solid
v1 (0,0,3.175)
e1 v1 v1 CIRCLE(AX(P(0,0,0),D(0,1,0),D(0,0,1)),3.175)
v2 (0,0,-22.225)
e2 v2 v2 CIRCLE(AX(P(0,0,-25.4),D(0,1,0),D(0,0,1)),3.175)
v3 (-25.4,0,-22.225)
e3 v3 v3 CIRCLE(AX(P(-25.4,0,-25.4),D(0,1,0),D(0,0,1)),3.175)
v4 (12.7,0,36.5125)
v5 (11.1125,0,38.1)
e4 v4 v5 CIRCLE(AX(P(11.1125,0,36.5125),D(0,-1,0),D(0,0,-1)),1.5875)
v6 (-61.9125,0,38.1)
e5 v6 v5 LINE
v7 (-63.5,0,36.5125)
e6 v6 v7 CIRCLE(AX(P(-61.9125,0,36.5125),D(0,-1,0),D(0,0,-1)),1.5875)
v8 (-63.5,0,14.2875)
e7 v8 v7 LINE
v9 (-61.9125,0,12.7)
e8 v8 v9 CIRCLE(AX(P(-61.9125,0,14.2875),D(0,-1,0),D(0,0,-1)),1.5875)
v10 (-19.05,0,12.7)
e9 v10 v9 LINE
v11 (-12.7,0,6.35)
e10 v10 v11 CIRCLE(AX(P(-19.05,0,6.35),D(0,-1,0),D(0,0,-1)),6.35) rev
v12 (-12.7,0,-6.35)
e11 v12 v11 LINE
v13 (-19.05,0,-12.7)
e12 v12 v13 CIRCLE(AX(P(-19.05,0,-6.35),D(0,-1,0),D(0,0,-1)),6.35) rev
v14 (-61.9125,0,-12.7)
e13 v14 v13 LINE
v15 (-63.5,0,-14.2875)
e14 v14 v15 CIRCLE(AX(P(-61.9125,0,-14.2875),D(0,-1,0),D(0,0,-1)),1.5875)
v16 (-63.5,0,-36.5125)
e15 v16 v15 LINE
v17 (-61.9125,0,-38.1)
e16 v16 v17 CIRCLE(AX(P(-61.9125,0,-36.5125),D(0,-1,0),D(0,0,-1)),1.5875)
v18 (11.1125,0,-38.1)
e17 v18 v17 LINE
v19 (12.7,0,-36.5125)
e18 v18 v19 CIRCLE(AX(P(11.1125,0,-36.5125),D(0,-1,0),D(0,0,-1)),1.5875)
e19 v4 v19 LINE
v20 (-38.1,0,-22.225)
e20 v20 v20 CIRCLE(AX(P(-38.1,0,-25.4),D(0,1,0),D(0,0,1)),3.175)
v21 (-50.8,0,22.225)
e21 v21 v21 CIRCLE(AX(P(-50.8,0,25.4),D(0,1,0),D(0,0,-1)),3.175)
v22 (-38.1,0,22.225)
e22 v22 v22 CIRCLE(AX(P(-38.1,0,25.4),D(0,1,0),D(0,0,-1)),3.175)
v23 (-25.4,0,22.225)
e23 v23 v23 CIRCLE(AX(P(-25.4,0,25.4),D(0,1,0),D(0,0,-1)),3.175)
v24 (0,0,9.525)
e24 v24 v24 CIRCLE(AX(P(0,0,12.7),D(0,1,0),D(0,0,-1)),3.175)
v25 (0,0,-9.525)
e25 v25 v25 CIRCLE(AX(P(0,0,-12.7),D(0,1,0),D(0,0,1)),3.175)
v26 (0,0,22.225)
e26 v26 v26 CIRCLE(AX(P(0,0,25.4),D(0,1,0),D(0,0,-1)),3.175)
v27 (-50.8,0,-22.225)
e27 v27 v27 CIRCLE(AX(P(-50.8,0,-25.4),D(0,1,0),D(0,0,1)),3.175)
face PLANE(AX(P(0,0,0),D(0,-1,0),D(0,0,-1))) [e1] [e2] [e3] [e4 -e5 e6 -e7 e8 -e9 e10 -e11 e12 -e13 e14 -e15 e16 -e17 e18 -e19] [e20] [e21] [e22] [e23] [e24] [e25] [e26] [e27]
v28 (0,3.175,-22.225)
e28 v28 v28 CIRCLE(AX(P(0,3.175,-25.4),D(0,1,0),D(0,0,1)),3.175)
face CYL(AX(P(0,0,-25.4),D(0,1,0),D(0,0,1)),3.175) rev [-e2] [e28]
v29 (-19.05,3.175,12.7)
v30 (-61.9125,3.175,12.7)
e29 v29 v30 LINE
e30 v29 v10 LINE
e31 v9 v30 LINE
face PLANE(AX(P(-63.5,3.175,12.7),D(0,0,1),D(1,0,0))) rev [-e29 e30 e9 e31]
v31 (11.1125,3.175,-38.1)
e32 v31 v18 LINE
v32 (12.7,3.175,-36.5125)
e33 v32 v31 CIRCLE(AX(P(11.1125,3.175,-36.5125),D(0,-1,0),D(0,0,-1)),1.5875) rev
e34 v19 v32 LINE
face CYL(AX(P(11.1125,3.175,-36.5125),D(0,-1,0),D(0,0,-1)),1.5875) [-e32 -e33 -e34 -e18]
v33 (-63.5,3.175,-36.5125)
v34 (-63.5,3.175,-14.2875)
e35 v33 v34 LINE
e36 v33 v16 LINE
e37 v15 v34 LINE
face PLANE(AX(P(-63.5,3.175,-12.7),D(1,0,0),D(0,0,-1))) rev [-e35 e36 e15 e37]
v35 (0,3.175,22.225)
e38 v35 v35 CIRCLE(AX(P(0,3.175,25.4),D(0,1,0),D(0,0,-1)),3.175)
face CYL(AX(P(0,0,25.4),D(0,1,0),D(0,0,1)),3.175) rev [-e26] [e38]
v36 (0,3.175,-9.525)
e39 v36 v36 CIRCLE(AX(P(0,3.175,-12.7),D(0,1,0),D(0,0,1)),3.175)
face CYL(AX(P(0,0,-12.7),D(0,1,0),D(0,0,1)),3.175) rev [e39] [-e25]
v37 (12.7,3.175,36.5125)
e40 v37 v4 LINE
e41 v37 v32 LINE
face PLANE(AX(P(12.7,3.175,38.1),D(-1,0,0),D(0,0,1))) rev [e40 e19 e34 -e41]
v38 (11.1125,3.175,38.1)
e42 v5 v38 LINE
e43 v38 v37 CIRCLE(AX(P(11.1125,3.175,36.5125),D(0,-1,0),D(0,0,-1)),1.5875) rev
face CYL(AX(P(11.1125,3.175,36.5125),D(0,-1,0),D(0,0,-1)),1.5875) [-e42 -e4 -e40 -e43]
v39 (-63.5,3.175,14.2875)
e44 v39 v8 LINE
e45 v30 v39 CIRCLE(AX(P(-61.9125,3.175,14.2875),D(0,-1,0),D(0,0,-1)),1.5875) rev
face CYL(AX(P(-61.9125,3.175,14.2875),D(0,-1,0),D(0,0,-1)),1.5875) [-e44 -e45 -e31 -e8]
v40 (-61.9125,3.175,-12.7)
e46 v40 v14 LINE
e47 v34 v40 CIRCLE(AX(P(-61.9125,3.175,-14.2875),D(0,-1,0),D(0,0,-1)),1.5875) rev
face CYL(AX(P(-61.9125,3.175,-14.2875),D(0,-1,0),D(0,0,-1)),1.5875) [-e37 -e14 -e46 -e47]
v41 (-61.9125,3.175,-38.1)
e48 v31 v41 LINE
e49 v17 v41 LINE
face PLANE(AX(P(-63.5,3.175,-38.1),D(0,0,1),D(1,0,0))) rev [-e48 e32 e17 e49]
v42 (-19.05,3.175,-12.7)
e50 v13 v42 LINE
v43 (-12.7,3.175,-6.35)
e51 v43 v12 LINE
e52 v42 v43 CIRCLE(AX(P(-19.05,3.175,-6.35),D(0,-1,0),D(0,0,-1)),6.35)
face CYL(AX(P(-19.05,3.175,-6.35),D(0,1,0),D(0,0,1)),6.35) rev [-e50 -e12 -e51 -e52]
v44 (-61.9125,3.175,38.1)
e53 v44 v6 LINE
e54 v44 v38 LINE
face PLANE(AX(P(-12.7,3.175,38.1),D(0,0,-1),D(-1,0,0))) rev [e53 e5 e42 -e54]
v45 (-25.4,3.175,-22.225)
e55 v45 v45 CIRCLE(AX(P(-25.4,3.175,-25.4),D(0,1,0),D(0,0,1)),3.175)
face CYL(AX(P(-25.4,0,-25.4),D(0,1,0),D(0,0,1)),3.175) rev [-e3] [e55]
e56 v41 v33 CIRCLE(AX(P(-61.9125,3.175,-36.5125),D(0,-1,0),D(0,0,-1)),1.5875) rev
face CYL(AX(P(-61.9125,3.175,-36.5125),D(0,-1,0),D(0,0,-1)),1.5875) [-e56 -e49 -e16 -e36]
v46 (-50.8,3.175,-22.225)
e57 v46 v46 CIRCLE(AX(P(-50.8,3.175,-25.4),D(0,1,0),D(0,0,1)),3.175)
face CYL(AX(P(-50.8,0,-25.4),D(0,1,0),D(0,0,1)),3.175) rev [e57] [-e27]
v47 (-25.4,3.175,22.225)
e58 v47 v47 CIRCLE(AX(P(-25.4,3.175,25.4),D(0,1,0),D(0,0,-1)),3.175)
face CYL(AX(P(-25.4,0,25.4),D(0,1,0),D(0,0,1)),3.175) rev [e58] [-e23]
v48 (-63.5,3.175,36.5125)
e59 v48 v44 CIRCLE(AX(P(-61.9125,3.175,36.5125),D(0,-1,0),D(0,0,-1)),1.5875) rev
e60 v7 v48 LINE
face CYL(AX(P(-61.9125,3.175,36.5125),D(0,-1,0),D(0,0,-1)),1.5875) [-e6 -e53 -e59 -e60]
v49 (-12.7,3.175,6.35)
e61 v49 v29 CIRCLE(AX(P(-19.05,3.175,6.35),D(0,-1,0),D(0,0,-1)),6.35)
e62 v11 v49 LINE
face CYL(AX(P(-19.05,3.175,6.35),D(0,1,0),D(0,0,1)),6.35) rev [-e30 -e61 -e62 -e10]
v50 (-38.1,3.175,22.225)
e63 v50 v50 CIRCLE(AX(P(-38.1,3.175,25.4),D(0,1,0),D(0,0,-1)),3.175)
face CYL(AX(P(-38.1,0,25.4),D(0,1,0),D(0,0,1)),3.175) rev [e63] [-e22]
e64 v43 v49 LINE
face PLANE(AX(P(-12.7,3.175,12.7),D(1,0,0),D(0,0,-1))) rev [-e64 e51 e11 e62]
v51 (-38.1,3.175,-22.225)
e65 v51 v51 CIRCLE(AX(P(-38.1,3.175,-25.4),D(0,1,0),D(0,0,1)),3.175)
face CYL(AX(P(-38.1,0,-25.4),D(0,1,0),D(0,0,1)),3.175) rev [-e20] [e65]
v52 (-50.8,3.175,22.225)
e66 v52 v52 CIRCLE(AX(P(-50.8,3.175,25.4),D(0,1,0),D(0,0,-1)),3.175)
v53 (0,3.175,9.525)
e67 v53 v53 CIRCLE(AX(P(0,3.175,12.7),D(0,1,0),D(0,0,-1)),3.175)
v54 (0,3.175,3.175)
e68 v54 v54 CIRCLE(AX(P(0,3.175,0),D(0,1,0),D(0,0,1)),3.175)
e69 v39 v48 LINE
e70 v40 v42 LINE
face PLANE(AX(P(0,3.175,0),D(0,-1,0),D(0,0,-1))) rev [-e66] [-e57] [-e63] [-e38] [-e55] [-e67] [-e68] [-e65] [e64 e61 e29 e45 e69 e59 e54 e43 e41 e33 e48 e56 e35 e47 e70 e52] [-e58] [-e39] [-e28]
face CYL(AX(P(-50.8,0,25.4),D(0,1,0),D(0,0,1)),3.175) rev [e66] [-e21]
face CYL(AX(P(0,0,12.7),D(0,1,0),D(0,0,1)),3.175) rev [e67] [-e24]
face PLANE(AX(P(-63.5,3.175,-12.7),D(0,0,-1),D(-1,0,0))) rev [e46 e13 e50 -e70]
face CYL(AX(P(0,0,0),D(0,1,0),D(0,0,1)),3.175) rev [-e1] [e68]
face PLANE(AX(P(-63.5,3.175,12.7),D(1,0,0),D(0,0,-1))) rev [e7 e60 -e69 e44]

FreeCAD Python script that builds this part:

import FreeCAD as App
import Part
import Sketcher
from FreeCAD import Vector
Q = App.Units.Quantity


def edges_at(feature, points):
    """Names of the edges that pass closest to the given points."""
    edges = feature.Shape.Edges
    near = lambda p: min(range(len(edges)), key=lambda i: edges[i].distToShape(Part.Vertex(*p))[0])
    return sorted({f"Edge{near(p) + 1}" for p in points})


def add_polygon(sketch, points):
    """Adds a closed chain of lines whose ends are joined by coincident constraints."""
    first, n = sketch.GeometryCount, len(points)
    for a, b in zip(points, points[1:] + points[:1]):
        sketch.addGeometry(Part.LineSegment(App.Vector(*a, 0), App.Vector(*b, 0)), False)
    for i in range(n):
        sketch.addConstraint(Sketcher.Constraint("Coincident", first + i, 2, first + (i + 1) % n, 1))

doc = App.newDocument("Part")
body = doc.addObject("PartDesign::Body", "Body")

# Sketch on XZ plane
sketch1 = body.newObject("Sketcher::SketchObject", "Sketch")
sketch1.AttachmentSupport = (doc.getObject("XZ_Plane"), [""])
sketch1.MapMode = "FlatFace"
add_polygon(sketch1, [(13, 38), (13, -38), (-64, -38), (-64, -13), (-13, -13), (-13, 13), (-64, 13), (-64, 38)])  # lines 0-7
sketch1.addConstraint([
    Sketcher.Constraint("Vertical", 0),
    Sketcher.Constraint("Horizontal", 1),
    Sketcher.Constraint("Vertical", 2),
    Sketcher.Constraint("Horizontal", 3),
    Sketcher.Constraint("Vertical", 4),
    Sketcher.Constraint("Horizontal", 5),
    Sketcher.Constraint("Vertical", 6),
    Sketcher.Constraint("Horizontal", 7),
    Sketcher.Constraint("Symmetric", 2, 2, 5, 2, -1),
    Sketcher.Constraint("Equal", 7, 0),
    Sketcher.Constraint("Equal", 2, 4),
    Sketcher.Constraint("Equal", 4, 6),
    Sketcher.Constraint("DistanceX", 1, 2, 1, 1, Q("3 in")),
    Sketcher.Constraint("DistanceX", 3, 1, 3, 2, Q("2 in")),
    Sketcher.Constraint("DistanceX", -1, 1, 0, 2, Q("0.5 in")),
])
pad1 = body.newObject("PartDesign::Pad", "Pad")
pad1.Profile = sketch1
pad1.Length = Q("0.125 in")
pad1.Reversed = True

# Sketch on XZ plane
sketch2 = body.newObject("Sketcher::SketchObject", "Sketch001")
sketch2.AttachmentSupport = (doc.getObject("XZ_Plane"), [""])
sketch2.MapMode = "FlatFace"
sketch2.AttachmentOffset = App.Placement(Vector(0, 0, -0.125 * 25.4), App.Rotation())
sketch2.addGeometry([
    Part.Circle(Vector(0, 0, 0), Vector(0, 0, 1), 3.2),  # 0
    Part.Circle(Vector(0, -12.7, 0), Vector(0, 0, 1), 3.2),  # 1
    Part.Circle(Vector(0, -25.4, 0), Vector(0, 0, 1), 3.2),  # 2
    Part.Circle(Vector(0, 25.4, 0), Vector(0, 0, 1), 3.2),  # 3
    Part.Circle(Vector(0, 12.7, 0), Vector(0, 0, 1), 3.2),  # 4
    Part.Circle(Vector(-50.8, -25.4, 0), Vector(0, 0, 1), 3.2),  # 5
    Part.Circle(Vector(-38.1, -25.4, 0), Vector(0, 0, 1), 3.2),  # 6
    Part.Circle(Vector(-25.4, -25.4, 0), Vector(0, 0, 1), 3.2),  # 7
    Part.Circle(Vector(-25.4, 25.4, 0), Vector(0, 0, 1), 3.2),  # 8
    Part.Circle(Vector(-38.1, 25.4, 0), Vector(0, 0, 1), 3.2),  # 9
    Part.Circle(Vector(-50.8, 25.4, 0), Vector(0, 0, 1), 3.2),  # 10
], False)
sketch2.addConstraint([
    Sketcher.Constraint("Coincident", 0, 3, -1, 1),
    Sketcher.Constraint("Equal", 0, 1),
    Sketcher.Constraint("Equal", 1, 2),
    Sketcher.Constraint("Equal", 2, 3),
    Sketcher.Constraint("Equal", 3, 4),
    Sketcher.Constraint("Equal", 4, 5),
    Sketcher.Constraint("Equal", 5, 6),
    Sketcher.Constraint("Equal", 6, 7),
    Sketcher.Constraint("Equal", 7, 8),
    Sketcher.Constraint("Equal", 8, 9),
    Sketcher.Constraint("Equal", 9, 10),
    Sketcher.Constraint("Symmetric", 2, 3, 3, 3, -1, 1),
    Sketcher.Constraint("Symmetric", 1, 3, 4, 3, -1, 1),
    Sketcher.Constraint("Symmetric", 7, 3, 8, 3, -1),
    Sketcher.Constraint("Symmetric", 6, 3, 9, 3, -1),
    Sketcher.Constraint("Symmetric", 5, 3, 10, 3, -1),
    Sketcher.Constraint("PointOnObject", 1, 3, -2),
    Sketcher.Constraint("PointOnObject", 2, 3, -2),
    Sketcher.Constraint("Horizontal", 2, 3, 5, 3),
    Sketcher.Constraint("Horizontal", 5, 3, 6, 3),
    Sketcher.Constraint("Horizontal", 6, 3, 7, 3),
    Sketcher.Constraint("Diameter", 0, Q("0.25 in")),
    Sketcher.Constraint("DistanceY", 2, 3, -1, 1, Q("1 in")),
    Sketcher.Constraint("DistanceX", 5, 3, -1, 1, Q("2 in")),
    Sketcher.Constraint("DistanceX", 7, 3, -1, 1, Q("1 in")),
    Sketcher.Constraint("DistanceY", 1, 3, 4, 3, Q("1 in")),
    Sketcher.Constraint("DistanceX", 6, 3, -1, 1, Q("1.5 in")),
])
pocket1 = body.newObject("PartDesign::Pocket", "Pocket")
pocket1.Profile = sketch2
pocket1.Type = "ThroughAll"
pocket1.Reversed = True
doc.recompute()

fillet = body.newObject("PartDesign::Fillet", "Fillet")
fillet.Base = (pocket1, edges_at(pocket1, [
    (12.7, 1.587, 38.1),
    (-63.5, 1.587, 38.1),
    (-63.5, 1.587, 12.7),
    (-63.5, 1.587, -12.7),
    (-63.5, 1.587, -38.1),
    (12.7, 1.587, -38.1),
]))
fillet.Radius = Q("0.0625 in")
doc.recompute()

fillet2 = body.newObject("PartDesign::Fillet", "Fillet001")
fillet2.Base = (fillet, edges_at(fillet, [(-12.7, 1.587, 12.7), (-12.7, 1.587, -12.7)]))
fillet2.Radius = Q("0.25 in")

doc.recompute()
